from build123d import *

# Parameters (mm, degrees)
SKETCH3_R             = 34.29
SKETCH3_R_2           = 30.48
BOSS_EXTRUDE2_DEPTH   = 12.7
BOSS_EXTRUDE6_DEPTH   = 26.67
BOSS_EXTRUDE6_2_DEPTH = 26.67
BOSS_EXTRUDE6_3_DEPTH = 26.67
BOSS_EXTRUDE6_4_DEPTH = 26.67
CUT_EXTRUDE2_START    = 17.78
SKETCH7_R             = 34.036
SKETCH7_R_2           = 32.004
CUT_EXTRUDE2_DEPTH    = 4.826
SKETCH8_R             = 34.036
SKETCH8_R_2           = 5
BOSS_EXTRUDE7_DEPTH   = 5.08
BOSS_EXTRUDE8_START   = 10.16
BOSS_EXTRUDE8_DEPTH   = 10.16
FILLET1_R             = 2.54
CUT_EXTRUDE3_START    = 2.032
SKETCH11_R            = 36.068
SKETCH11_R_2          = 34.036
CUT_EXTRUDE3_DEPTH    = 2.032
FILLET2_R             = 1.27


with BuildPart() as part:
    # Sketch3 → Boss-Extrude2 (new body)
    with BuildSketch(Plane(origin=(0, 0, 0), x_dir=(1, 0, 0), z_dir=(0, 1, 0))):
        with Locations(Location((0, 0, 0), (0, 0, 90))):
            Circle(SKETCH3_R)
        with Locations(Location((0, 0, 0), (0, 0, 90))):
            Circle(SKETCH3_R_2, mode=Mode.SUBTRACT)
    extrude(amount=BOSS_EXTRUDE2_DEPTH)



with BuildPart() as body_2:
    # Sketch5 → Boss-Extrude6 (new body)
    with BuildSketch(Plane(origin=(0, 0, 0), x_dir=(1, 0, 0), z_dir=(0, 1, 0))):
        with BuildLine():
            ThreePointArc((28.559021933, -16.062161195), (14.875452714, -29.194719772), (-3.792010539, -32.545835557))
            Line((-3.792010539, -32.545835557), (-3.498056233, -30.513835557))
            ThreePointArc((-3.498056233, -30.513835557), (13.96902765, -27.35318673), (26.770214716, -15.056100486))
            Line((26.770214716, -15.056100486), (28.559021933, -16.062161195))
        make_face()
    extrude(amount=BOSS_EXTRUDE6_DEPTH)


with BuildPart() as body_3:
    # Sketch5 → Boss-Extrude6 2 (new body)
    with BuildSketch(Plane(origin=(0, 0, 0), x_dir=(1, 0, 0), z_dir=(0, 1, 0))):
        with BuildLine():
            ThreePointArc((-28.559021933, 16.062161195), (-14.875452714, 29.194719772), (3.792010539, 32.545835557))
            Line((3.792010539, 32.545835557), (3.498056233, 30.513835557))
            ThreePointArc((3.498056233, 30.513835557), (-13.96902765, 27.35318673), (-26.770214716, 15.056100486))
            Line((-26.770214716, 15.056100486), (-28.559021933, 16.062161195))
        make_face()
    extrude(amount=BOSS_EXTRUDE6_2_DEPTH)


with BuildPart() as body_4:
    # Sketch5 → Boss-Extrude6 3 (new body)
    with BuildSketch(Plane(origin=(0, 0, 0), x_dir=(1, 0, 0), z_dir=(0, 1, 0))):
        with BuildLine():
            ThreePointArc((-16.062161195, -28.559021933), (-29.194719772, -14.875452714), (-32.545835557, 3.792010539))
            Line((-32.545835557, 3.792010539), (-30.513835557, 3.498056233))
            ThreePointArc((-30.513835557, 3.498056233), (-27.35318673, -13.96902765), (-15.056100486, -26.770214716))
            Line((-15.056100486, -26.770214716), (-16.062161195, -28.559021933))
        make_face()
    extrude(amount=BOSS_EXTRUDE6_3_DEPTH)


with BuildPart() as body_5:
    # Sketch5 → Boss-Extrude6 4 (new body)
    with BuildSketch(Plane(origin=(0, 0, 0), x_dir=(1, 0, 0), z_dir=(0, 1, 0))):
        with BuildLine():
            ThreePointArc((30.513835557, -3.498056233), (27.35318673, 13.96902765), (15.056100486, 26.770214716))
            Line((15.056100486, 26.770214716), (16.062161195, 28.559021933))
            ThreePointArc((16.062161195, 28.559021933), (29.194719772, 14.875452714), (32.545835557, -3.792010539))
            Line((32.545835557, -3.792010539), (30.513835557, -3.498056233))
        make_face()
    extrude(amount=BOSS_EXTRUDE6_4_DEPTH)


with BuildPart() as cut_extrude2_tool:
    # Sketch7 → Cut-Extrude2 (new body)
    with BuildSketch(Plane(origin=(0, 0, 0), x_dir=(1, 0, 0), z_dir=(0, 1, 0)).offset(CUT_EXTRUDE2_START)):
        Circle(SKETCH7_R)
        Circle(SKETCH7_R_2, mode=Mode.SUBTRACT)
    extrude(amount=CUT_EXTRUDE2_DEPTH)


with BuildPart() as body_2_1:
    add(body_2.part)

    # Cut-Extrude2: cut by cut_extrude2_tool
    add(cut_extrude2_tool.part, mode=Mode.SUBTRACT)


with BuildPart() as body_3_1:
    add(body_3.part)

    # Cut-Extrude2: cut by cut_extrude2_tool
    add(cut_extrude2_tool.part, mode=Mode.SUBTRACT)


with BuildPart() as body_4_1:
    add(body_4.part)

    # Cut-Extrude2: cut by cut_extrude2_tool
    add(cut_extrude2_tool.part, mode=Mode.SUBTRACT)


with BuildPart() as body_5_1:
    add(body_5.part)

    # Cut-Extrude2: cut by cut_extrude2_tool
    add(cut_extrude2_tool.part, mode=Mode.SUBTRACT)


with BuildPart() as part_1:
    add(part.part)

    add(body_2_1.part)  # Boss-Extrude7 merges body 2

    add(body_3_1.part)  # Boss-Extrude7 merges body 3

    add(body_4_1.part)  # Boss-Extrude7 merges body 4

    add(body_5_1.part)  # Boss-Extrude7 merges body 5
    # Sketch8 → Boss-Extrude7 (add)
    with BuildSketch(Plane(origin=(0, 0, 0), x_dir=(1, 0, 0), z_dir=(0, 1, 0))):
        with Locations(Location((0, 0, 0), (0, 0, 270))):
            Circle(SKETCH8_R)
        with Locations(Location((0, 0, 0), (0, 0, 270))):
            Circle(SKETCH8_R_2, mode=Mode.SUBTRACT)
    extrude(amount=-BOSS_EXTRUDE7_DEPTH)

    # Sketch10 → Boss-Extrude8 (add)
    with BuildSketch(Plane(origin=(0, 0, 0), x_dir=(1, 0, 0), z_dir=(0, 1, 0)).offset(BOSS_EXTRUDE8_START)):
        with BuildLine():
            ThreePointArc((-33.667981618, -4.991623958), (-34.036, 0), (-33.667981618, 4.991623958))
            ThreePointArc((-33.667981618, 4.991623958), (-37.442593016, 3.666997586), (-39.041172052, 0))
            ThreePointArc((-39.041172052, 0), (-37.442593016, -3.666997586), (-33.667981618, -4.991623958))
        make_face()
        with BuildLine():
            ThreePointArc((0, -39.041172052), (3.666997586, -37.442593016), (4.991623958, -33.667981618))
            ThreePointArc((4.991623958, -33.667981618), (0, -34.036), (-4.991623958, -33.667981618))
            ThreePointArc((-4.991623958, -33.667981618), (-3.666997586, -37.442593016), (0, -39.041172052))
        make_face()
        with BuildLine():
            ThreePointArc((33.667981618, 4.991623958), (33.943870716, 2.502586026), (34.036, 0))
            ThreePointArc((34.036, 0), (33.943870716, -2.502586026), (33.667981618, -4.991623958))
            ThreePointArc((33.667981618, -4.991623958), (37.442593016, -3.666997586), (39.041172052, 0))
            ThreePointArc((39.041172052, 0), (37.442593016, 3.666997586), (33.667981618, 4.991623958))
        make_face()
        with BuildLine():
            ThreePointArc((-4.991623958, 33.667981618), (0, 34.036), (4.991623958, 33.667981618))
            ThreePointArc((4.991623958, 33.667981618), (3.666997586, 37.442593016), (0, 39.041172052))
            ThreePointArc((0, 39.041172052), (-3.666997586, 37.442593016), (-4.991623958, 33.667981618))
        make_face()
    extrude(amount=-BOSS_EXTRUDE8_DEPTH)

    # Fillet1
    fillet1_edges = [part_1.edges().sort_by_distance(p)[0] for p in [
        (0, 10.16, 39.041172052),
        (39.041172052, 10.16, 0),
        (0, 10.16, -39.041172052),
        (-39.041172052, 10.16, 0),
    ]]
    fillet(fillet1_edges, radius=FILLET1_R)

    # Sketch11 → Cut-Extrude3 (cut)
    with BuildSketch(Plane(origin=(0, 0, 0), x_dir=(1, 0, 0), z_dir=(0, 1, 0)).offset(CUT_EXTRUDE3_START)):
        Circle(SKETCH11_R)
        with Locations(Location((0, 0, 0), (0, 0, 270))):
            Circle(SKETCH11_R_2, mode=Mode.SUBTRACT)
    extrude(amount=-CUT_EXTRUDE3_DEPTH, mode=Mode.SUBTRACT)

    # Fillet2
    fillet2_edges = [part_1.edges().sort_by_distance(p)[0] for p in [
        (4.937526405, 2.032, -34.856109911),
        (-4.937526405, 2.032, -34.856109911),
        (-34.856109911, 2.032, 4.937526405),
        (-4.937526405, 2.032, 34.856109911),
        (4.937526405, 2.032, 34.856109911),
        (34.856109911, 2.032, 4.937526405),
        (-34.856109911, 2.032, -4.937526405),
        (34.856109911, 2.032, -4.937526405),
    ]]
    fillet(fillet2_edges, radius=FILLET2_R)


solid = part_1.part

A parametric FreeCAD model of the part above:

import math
import FreeCAD as App
import Part
import Sketcher

V = App.Vector
Q = App.Units.Quantity


def edges_at(feature, points):
    """Names of the edges that pass closest to the given points."""
    edges = feature.Shape.Edges
    near = lambda p: min(range(len(edges)), key=lambda i: edges[i].distToShape(Part.Vertex(*p))[0])
    return sorted({f"Edge{near(p) + 1}" for p in points})

doc = App.newDocument("Part")
body = doc.addObject("PartDesign::Body", "Body")

# Sketch on XZ plane
sketch1 = body.newObject("Sketcher::SketchObject", "Sketch")
sketch1.AttachmentSupport = (doc.getObject("XZ_Plane"), [""])
sketch1.MapMode = "FlatFace"
sketch1.addGeometry([
    Part.Circle(V(0, 0, 0), V(0, 0, 1), 34),
    Part.Circle(V(0, 0, 0), V(0, 0, 1), 30),
], False)
sketch1.addConstraint([
    Sketcher.Constraint("Coincident", 0, 3, -1, 1),
    Sketcher.Constraint("Coincident", 1, 3, -1, 1),
    Sketcher.Constraint("Diameter", 0, Q("2.7 in")),
    Sketcher.Constraint("Diameter", 1, Q("2.4 in")),
])
pad1 = body.newObject("PartDesign::Pad", "Pad")
pad1.Profile = sketch1
pad1.Length = Q("0.5 in")
pad1.Reversed = True
body2 = doc.addObject("PartDesign::Body", "Body001")

# Sketch on XZ plane
sketch2 = body2.newObject("Sketcher::SketchObject", "Sketch001")
sketch2.AttachmentSupport = (doc.getObject("XZ_Plane001"), [""])
sketch2.MapMode = "FlatFace"
sketch2.addGeometry([
    Part.ArcOfCircle(Part.Circle(V(0, 0, 0), V(0, 0, 1), 32.8), math.radians(29), math.radians(97)),
    Part.LineSegment(V(28.6, 16.1, 0), V(26.8, 15.1, 0)),
    Part.ArcOfCircle(Part.Circle(V(0, 0, 0), V(0, 0, 1), 30.7), math.radians(29), math.radians(97)),
    Part.LineSegment(V(-3.5, 30.5, 0), V(-3.8, 32.5, 0)),
], False)
sketch2.addConstraint([
    Sketcher.Constraint("Coincident", 0, 1, 1, 1),
    Sketcher.Constraint("Coincident", 1, 2, 2, 1),
    Sketcher.Constraint("Coincident", 2, 2, 3, 1),
    Sketcher.Constraint("Coincident", 3, 2, 0, 2),
    Sketcher.Constraint("Coincident", 0, 3, -1, 1),
    Sketcher.Constraint("Coincident", 2, 3, -1, 1),
    Sketcher.Constraint("Radius", 0, Q("1.29 in")),
    Sketcher.Constraint("DistanceY", 2, 2, 3, 2, Q("0.08 in")),
    Sketcher.Constraint("Radius", 2, 30.713687),
    Sketcher.Constraint("DistanceY", -1, 1, 1, 2, 15.0561),
    Sketcher.Constraint("DistanceX", -1, 1, 0, 1, 28.559022),
    Sketcher.Constraint("DistanceX", 3, 2, -1, 1, 3.792011),
])
pad2 = body2.newObject("PartDesign::Pad", "Pad001")
pad2.Profile = sketch2
pad2.Length = Q("1.05 in")
pad2.Reversed = True
body3 = doc.addObject("PartDesign::Body", "Body002")

# Sketch on XZ plane
sketch3 = body3.newObject("Sketcher::SketchObject", "Sketch002")
sketch3.AttachmentSupport = (doc.getObject("XZ_Plane002"), [""])
sketch3.MapMode = "FlatFace"
sketch3.addGeometry([
    Part.ArcOfCircle(Part.Circle(V(0, 0, 0), V(0, 0, 1), 32.8), math.radians(-151), math.radians(-83)),
    Part.LineSegment(V(-28.6, -16.1, 0), V(-26.8, -15.1, 0)),
    Part.ArcOfCircle(Part.Circle(V(0, 0, 0), V(0, 0, 1), 30.7), math.radians(-151), math.radians(-83)),
    Part.LineSegment(V(3.5, -30.5, 0), V(3.8, -32.5, 0)),
], False)
sketch3.addConstraint([
    Sketcher.Constraint("Coincident", 0, 1, 1, 1),
    Sketcher.Constraint("Coincident", 1, 2, 2, 1),
    Sketcher.Constraint("Coincident", 2, 2, 3, 1),
    Sketcher.Constraint("Coincident", 3, 2, 0, 2),
    Sketcher.Constraint("Coincident", 0, 3, -1, 1),
    Sketcher.Constraint("Coincident", 2, 3, -1, 1),
    Sketcher.Constraint("Radius", 0, Q("1.29 in")),
    Sketcher.Constraint("DistanceY", 3, 2, 2, 2, Q("0.08 in")),
    Sketcher.Constraint("Radius", 2, 30.713687),
    Sketcher.Constraint("DistanceY", 1, 2, -1, 1, 15.0561),
    Sketcher.Constraint("DistanceX", 0, 1, -1, 1, 28.559022),
    Sketcher.Constraint("DistanceX", -1, 1, 3, 2, 3.792011),
])
pad3 = body3.newObject("PartDesign::Pad", "Pad002")
pad3.Profile = sketch3
pad3.Length = Q("1.05 in")
pad3.Reversed = True
body4 = doc.addObject("PartDesign::Body", "Body003")

# Sketch on XZ plane
sketch4 = body4.newObject("Sketcher::SketchObject", "Sketch003")
sketch4.AttachmentSupport = (doc.getObject("XZ_Plane003"), [""])
sketch4.MapMode = "FlatFace"
sketch4.addGeometry([
    Part.ArcOfCircle(Part.Circle(V(0, 0, 0), V(0, 0, 1), 32.8), math.radians(119), math.radians(187)),
    Part.LineSegment(V(-16.1, 28.6, 0), V(-15.1, 26.8, 0)),
    Part.ArcOfCircle(Part.Circle(V(0, 0, 0), V(0, 0, 1), 30.7), math.radians(119), math.radians(187)),
    Part.LineSegment(V(-30.5, -3.5, 0), V(-32.5, -3.8, 0)),
], False)
sketch4.addConstraint([
    Sketcher.Constraint("Coincident", 0, 1, 1, 1),
    Sketcher.Constraint("Coincident", 1, 2, 2, 1),
    Sketcher.Constraint("Coincident", 2, 2, 3, 1),
    Sketcher.Constraint("Coincident", 3, 2, 0, 2),
    Sketcher.Constraint("Coincident", 0, 3, -1, 1),
    Sketcher.Constraint("Coincident", 2, 3, -1, 1),
    Sketcher.Constraint("Radius", 0, Q("1.29 in")),
    Sketcher.Constraint("DistanceX", 3, 2, 2, 2, Q("0.08 in")),
    Sketcher.Constraint("Radius", 2, 30.713687),
    Sketcher.Constraint("DistanceX", 1, 2, -1, 1, 15.0561),
    Sketcher.Constraint("DistanceX", 0, 1, -1, 1, 16.062161),
    Sketcher.Constraint("DistanceY", 3, 2, -1, 1, 3.792011),
])
pad4 = body4.newObject("PartDesign::Pad", "Pad003")
pad4.Profile = sketch4
pad4.Length = Q("1.05 in")
pad4.Reversed = True
body5 = doc.addObject("PartDesign::Body", "Body004")

# Sketch on XZ plane
sketch5 = body5.newObject("Sketcher::SketchObject", "Sketch004")
sketch5.AttachmentSupport = (doc.getObject("XZ_Plane004"), [""])
sketch5.MapMode = "FlatFace"
sketch5.addGeometry([
    Part.ArcOfCircle(Part.Circle(V(0, 0, 0), V(0, 0, 1), 30.7), math.radians(-61), math.radians(7)),
    Part.LineSegment(V(30.5, 3.5, 0), V(32.5, 3.8, 0)),
    Part.ArcOfCircle(Part.Circle(V(0, 0, 0), V(0, 0, 1), 32.8), math.radians(-61), math.radians(7)),
    Part.LineSegment(V(16.1, -28.6, 0), V(15.1, -26.8, 0)),
], False)
sketch5.addConstraint([
    Sketcher.Constraint("Coincident", 0, 2, 1, 1),
    Sketcher.Constraint("Coincident", 1, 2, 2, 2),
    Sketcher.Constraint("Coincident", 2, 1, 3, 1),
    Sketcher.Constraint("Coincident", 3, 2, 0, 1),
    Sketcher.Constraint("Coincident", 0, 3, -1, 1),
    Sketcher.Constraint("Coincident", 2, 3, -1, 1),
    Sketcher.Constraint("Radius", 2, Q("1.29 in")),
    Sketcher.Constraint("DistanceX", 0, 2, 1, 2, Q("0.08 in")),
    Sketcher.Constraint("Radius", 0, 30.713687),
    Sketcher.Constraint("DistanceX", -1, 1, 3, 2, 15.0561),
    Sketcher.Constraint("DistanceY", -1, 1, 1, 2, 3.792011),
    Sketcher.Constraint("DistanceX", -1, 1, 2, 1, 16.062161),
])
pad5 = body5.newObject("PartDesign::Pad", "Pad004")
pad5.Profile = sketch5
pad5.Length = Q("1.05 in")
pad5.Reversed = True
body6 = doc.addObject("PartDesign::Body", "Body005")

# Sketch on XZ plane
sketch6 = body6.newObject("Sketcher::SketchObject", "Sketch005")
sketch6.AttachmentSupport = (doc.getObject("XZ_Plane005"), [""])
sketch6.MapMode = "FlatFace"
sketch6.AttachmentOffset = App.Placement(V(0, 0, -0.7 * 25.4), App.Rotation())
sketch6.addGeometry([
    Part.Circle(V(0, 0, 0), V(0, 0, 1), 34),
    Part.Circle(V(0, 0, 0), V(0, 0, 1), 32),
], False)
sketch6.addConstraint([
    Sketcher.Constraint("Coincident", 0, 3, -1, 1),
    Sketcher.Constraint("Coincident", 1, 3, -1, 1),
    Sketcher.Constraint("Diameter", 0, Q("2.68 in")),
    Sketcher.Constraint("Diameter", 1, Q("2.52 in")),
])
pad6 = body6.newObject("PartDesign::Pad", "Pad005")
pad6.Profile = sketch6
pad6.Length = Q("0.19 in")
pad6.Reversed = True
doc.recompute()

body7 = doc.addObject("PartDesign::Body", "Body006")
body7.BaseFeature = body6
boolean = body2.newObject("PartDesign::Boolean", "Boolean")
boolean.Type = "Cut"
boolean.addObjects([body7])
doc.recompute()

body8 = doc.addObject("PartDesign::Body", "Body007")
body8.BaseFeature = body6
boolean2 = body3.newObject("PartDesign::Boolean", "Boolean001")
boolean2.Type = "Cut"
boolean2.addObjects([body8])
doc.recompute()

body9 = doc.addObject("PartDesign::Body", "Body008")
body9.BaseFeature = body6
boolean3 = body4.newObject("PartDesign::Boolean", "Boolean002")
boolean3.Type = "Cut"
boolean3.addObjects([body9])
doc.recompute()

boolean4 = body5.newObject("PartDesign::Boolean", "Boolean003")
boolean4.Type = "Cut"
boolean4.addObjects([body6])
doc.recompute()

boolean5 = body.newObject("PartDesign::Boolean", "Boolean004")
boolean5.Type = "Fuse"
boolean5.addObjects([body2])
doc.recompute()

boolean6 = body.newObject("PartDesign::Boolean", "Boolean005")
boolean6.Type = "Fuse"
boolean6.addObjects([body3])
doc.recompute()

boolean7 = body.newObject("PartDesign::Boolean", "Boolean006")
boolean7.Type = "Fuse"
boolean7.addObjects([body4])
doc.recompute()

boolean8 = body.newObject("PartDesign::Boolean", "Boolean007")
boolean8.Type = "Fuse"
boolean8.addObjects([body5])

# Sketch on XZ plane
sketch7 = body.newObject("Sketcher::SketchObject", "Sketch006")
sketch7.AttachmentSupport = (doc.getObject("XZ_Plane"), [""])
sketch7.MapMode = "FlatFace"
sketch7.addGeometry([
    Part.Circle(V(0, 0, 0), V(0, 0, 1), 34),
    Part.Circle(V(0, 0, 0), V(0, 0, 1), 5),
], False)
sketch7.addConstraint([
    Sketcher.Constraint("Coincident", 0, 3, -1, 1),
    Sketcher.Constraint("Coincident", 1, 3, -1, 1),
    Sketcher.Constraint("Diameter", 0, Q("2.68 in")),
    Sketcher.Constraint("Diameter", 1, 10.0),
])
pad7 = body.newObject("PartDesign::Pad", "Pad006")
pad7.Profile = sketch7
pad7.Length = Q("0.2 in")

# Sketch on XZ plane
sketch8 = body.newObject("Sketcher::SketchObject", "Sketch007")
sketch8.AttachmentSupport = (doc.getObject("XZ_Plane"), [""])
sketch8.MapMode = "FlatFace"
sketch8.AttachmentOffset = App.Placement(V(0, 0, -0.4 * 25.4), App.Rotation())
sketch8.addGeometry([
    Part.ArcOfCircle(Part.Circle(V(0, 0, 0), V(0, 0, 1), 34), math.radians(171.57), math.radians(188.43)),  # 0
    Part.ArcOfCircle(Part.Circle(V(-34, 0, 0), V(0, 0, 1), 5), math.radians(180), math.radians(274)),  # 1
    Part.ArcOfCircle(Part.Circle(V(-34, 0, 0), V(0, 0, 1), 5), math.radians(86), math.radians(180)),  # 2
    Part.ArcOfCircle(Part.Circle(V(0, 34, 0), V(0, 0, 1), 5), math.radians(-4), math.radians(90)),  # 3
    Part.ArcOfCircle(Part.Circle(V(0, 0, 0), V(0, 0, 1), 34), math.radians(81.57), math.radians(98.43)),  # 4
    Part.ArcOfCircle(Part.Circle(V(0, 34, 0), V(0, 0, 1), 5), math.radians(90), math.radians(184)),  # 5
    Part.ArcOfCircle(Part.Circle(V(0, 0, 0), V(0, 0, 1), 34), math.radians(-8.43), math.radians(0)),  # 6
    Part.ArcOfCircle(Part.Circle(V(0, 0, 0), V(0, 0, 1), 34), math.radians(0), math.radians(8.43)),  # 7
    Part.ArcOfCircle(Part.Circle(V(34, 0, 0), V(0, 0, 1), 5), math.radians(0), math.radians(94)),  # 8
    Part.ArcOfCircle(Part.Circle(V(34, 0, 0), V(0, 0, 1), 5), math.radians(-94), math.radians(0)),  # 9
    Part.ArcOfCircle(Part.Circle(V(0, 0, 0), V(0, 0, 1), 34), math.radians(-98.43), math.radians(-81.57)),  # 10
    Part.ArcOfCircle(Part.Circle(V(0, -34, 0), V(0, 0, 1), 5), math.radians(-90), math.radians(4)),  # 11
    Part.ArcOfCircle(Part.Circle(V(0, -34, 0), V(0, 0, 1), 5), math.radians(176), math.radians(270)),  # 12
], False)
sketch8.addConstraint([
    Sketcher.Constraint("Coincident", 0, 2, 1, 2),
    Sketcher.Constraint("Tangent", 1, 1, 2, 2),
    Sketcher.Constraint("Coincident", 2, 1, 0, 1),
    Sketcher.Constraint("Coincident", 3, 1, 4, 1),
    Sketcher.Constraint("Coincident", 4, 2, 5, 2),
    Sketcher.Constraint("Tangent", 5, 1, 3, 2),
    Sketcher.Constraint("Tangent", 6, 2, 7, 1),
    Sketcher.Constraint("Coincident", 7, 2, 8, 2),
    Sketcher.Constraint("Tangent", 8, 1, 9, 2),
    Sketcher.Constraint("Coincident", 9, 1, 6, 1),
    Sketcher.Constraint("Coincident", 10, 2, 11, 2),
    Sketcher.Constraint("Tangent", 11, 1, 12, 2),
    Sketcher.Constraint("Coincident", 12, 1, 10, 1),
    Sketcher.Constraint("Coincident", 0, 3, -1, 1),
    Sketcher.Constraint("Coincident", 4, 3, -1, 1),
    Sketcher.Constraint("Coincident", 6, 3, -1, 1),
    Sketcher.Constraint("Coincident", 10, 3, -1, 1),
    Sketcher.Constraint("Coincident", 6, 2, 8, 3),
    Sketcher.Constraint("Equal", 1, 2),
    Sketcher.Constraint("Equal", 2, 3),
    Sketcher.Constraint("Equal", 0, 4),
    Sketcher.Constraint("Equal", 3, 5),
    Sketcher.Constraint("Equal", 4, 6),
    Sketcher.Constraint("Equal", 6, 7),
    Sketcher.Constraint("Equal", 5, 8),
    Sketcher.Constraint("Equal", 8, 9),
    Sketcher.Constraint("Equal", 7, 10),
    Sketcher.Constraint("Equal", 9, 11),
    Sketcher.Constraint("Equal", 11, 12),
    Sketcher.Constraint("Symmetric", 1, 3, 8, 3, -1, 1),
    Sketcher.Constraint("Symmetric", 3, 3, 11, 3, -1, 1),
    Sketcher.Constraint("PointOnObject", 1, 3, -1),
    Sketcher.Constraint("PointOnObject", 3, 3, -2),
    Sketcher.Constraint("PointOnObject", 1, 1, -1),
    Sketcher.Constraint("PointOnObject", 5, 1, -2),
    Sketcher.Constraint("PointOnObject", 8, 1, -1),
    Sketcher.Constraint("PointOnObject", 11, 1, -2),
    Sketcher.Constraint("Radius", 0, Q("1.34 in")),
    Sketcher.Constraint("DistanceY", -1, 1, 3, 3, Q("1.34 in")),
    Sketcher.Constraint("Radius", 1, 5.005172),
])
pad8 = body.newObject("PartDesign::Pad", "Pad007")
pad8.Profile = sketch8
pad8.Length = Q("0.4 in")
doc.recompute()

fillet = body.newObject("PartDesign::Fillet", "Fillet")
fillet.Base = (pad8, edges_at(pad8, [
    (-3.579, 10.16, 37.535),
    (37.535, 10.16, 3.579),
    (3.579, 10.16, -37.535),
    (-37.535, 10.16, 3.579),
]))
fillet.Radius = Q("0.1 in")

# Sketch on XZ plane
sketch9 = body.newObject("Sketcher::SketchObject", "Sketch008")
sketch9.AttachmentSupport = (doc.getObject("XZ_Plane"), [""])
sketch9.MapMode = "FlatFace"
sketch9.AttachmentOffset = App.Placement(V(0, 0, -0.08 * 25.4), App.Rotation())
sketch9.addGeometry([
    Part.Circle(V(0, 0, 0), V(0, 0, 1), 36),
    Part.Circle(V(0, 0, 0), V(0, 0, 1), 34),
], False)
sketch9.addConstraint([
    Sketcher.Constraint("Coincident", 0, 3, -1, 1),
    Sketcher.Constraint("Coincident", 1, 3, -1, 1),
    Sketcher.Constraint("Diameter", 0, Q("2.84 in")),
    Sketcher.Constraint("Diameter", 1, Q("2.68 in")),
])
pocket1 = body.newObject("PartDesign::Pocket", "Pocket")
pocket1.Profile = sketch9
pocket1.Length = Q("0.08 in")
pocket1.Reversed = True
doc.recompute()

fillet2 = body.newObject("PartDesign::Fillet", "Fillet001")
fillet2.Base = (pocket1, edges_at(pocket1, [
    (4.938, 2.032, -34.856),
    (-4.938, 2.032, -34.856),
    (-34.856, 2.032, 4.938),
    (-4.938, 2.032, 34.856),
    (4.938, 2.032, 34.856),
    (34.856, 2.032, 4.938),
    (-34.856, 2.032, -4.938),
    (34.856, 2.032, -4.938),
]))
fillet2.Radius = Q("0.05 in")

doc.recompute()
